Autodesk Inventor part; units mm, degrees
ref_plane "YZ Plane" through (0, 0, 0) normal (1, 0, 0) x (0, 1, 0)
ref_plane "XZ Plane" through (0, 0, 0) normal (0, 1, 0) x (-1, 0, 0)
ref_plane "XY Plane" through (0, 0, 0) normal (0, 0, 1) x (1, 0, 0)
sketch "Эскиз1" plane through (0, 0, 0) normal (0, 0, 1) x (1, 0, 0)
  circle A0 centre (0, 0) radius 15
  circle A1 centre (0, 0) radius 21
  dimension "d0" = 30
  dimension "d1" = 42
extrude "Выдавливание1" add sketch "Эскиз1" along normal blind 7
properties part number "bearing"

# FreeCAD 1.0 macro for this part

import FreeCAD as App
import Part
import Sketcher
from FreeCAD import Vector
Q = App.Units.Quantity

doc = App.newDocument("Part")
params = doc.addObject("Spreadsheet::Sheet", "Params")
for row, (alias, value) in enumerate([
    ("sketch1_diameter", "42 mm"),
    ("sketch1_diameter2", "30 mm"),
    ("pad1_length", "7 mm"),
], start=1):
    params.set(f"A{row}", alias)
    params.set(f"B{row}", "=" + value)
    params.setAlias(f"B{row}", alias)

body = doc.addObject("PartDesign::Body", "Body")

# Sketch on XY plane
sketch1 = body.newObject("Sketcher::SketchObject", "Sketch")
sketch1.AttachmentSupport = (doc.getObject("XY_Plane"), [""])
sketch1.MapMode = "FlatFace"
sketch1.addGeometry(Part.Circle(Vector(0, 0, 0), Vector(0, 0, 1), 21), False)
sketch1.addGeometry(Part.Circle(Vector(0, 0, 0), Vector(0, 0, 1), 15), False)
sketch1.addConstraint(Sketcher.Constraint("Coincident", 0, 3, -1, 1))
sketch1.addConstraint(Sketcher.Constraint("Coincident", 1, 3, -1, 1))
sketch1.addConstraint(Sketcher.Constraint("Diameter", 0, Q("42 mm")))
sketch1.addConstraint(Sketcher.Constraint("Diameter", 1, Q("30 mm")))
sketch1.setExpression("Constraints[2]", "Params.sketch1_diameter")
sketch1.setExpression("Constraints[3]", "Params.sketch1_diameter2")
pad1 = body.newObject("PartDesign::Pad", "Pad")
pad1.Profile = sketch1
pad1.setExpression("Length", "Params.pad1_length")

doc.recompute()
